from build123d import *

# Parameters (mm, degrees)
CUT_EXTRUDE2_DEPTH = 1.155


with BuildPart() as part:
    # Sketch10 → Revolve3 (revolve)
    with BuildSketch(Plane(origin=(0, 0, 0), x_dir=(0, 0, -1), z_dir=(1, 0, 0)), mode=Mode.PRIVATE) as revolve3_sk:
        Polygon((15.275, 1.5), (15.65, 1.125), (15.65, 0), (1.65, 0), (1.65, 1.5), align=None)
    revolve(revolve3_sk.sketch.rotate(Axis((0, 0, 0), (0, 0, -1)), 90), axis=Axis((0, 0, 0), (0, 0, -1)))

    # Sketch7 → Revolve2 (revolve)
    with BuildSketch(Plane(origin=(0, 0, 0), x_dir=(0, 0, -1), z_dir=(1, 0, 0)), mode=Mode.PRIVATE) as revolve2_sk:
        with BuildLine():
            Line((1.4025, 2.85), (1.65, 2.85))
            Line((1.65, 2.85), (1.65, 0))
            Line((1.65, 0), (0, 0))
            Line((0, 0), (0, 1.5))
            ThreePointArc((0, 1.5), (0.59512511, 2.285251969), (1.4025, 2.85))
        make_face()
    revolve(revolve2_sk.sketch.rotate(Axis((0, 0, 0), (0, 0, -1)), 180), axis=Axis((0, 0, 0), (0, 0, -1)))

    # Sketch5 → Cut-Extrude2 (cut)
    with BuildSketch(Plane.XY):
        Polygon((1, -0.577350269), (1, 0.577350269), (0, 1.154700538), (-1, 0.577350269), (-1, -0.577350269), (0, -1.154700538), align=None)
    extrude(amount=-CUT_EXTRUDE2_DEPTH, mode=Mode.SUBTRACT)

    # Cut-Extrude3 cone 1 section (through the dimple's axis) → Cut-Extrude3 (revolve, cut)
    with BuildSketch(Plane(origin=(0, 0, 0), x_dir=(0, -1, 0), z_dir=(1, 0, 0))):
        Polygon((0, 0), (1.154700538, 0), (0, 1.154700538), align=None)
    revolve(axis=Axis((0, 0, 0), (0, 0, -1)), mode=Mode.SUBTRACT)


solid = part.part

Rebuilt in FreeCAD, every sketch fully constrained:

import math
import FreeCAD as App
import Part
import Sketcher

V = App.Vector
Q = App.Units.Quantity


def add_polygon(sketch, points):
    """Adds a closed chain of lines whose ends are joined by coincident constraints."""
    first, n = sketch.GeometryCount, len(points)
    for a, b in zip(points, points[1:] + points[:1]):
        sketch.addGeometry(Part.LineSegment(App.Vector(*a, 0), App.Vector(*b, 0)), False)
    for i in range(n):
        sketch.addConstraint(Sketcher.Constraint("Coincident", first + i, 2, first + (i + 1) % n, 1))

doc = App.newDocument("Part")
body = doc.addObject("PartDesign::Body", "Body")

# Sketch on YZ plane
sketch1 = body.newObject("Sketcher::SketchObject", "Sketch")
sketch1.AttachmentSupport = (doc.getObject("YZ_Plane"), [""])
sketch1.MapMode = "FlatFace"
add_polygon(sketch1, [(1.1, -15.7), (1.5, -15.3), (1.5, -1.6), (0, -1.6), (0, -15.7)])  # lines 0-4
sketch1.addConstraint(Sketcher.Constraint("Vertical", 1))
sketch1.addConstraint(Sketcher.Constraint("Horizontal", 2))
sketch1.addConstraint(Sketcher.Constraint("Vertical", 3))
sketch1.addConstraint(Sketcher.Constraint("Horizontal", 4))
sketch1.addConstraint(Sketcher.Constraint("PointOnObject", 2, 2, -2))
sketch1.addConstraint(Sketcher.Constraint("DistanceY", 3, 2, 3, 1, Q("14 mm")))
sketch1.addConstraint(Sketcher.Constraint("Angle", 0, Q("45 deg")))
sketch1.addConstraint(Sketcher.Constraint("DistanceX", 2, 2, 2, 1, Q("1.5 mm")))
sketch1.addConstraint(Sketcher.Constraint("DistanceX", 4, 1, 4, 2, Q("1.125 mm")))
sketch1.addConstraint(Sketcher.Constraint("DistanceY", 1, 2, -1, 1, Q("1.65 mm")))
revolution = body.newObject("PartDesign::Revolution", "Revolution")
revolution.Profile = sketch1
revolution.ReferenceAxis = (sketch1, ["V_Axis"])
revolution.Angle = 360

# Sketch on YZ plane
sketch2 = body.newObject("Sketcher::SketchObject", "Sketch001")
sketch2.AttachmentSupport = (doc.getObject("YZ_Plane"), [""])
sketch2.MapMode = "FlatFace"
sketch2.addGeometry(Part.LineSegment(V(2.85, -1.65, 0), V(2.85, -1.4, 0)), False)
sketch2.addGeometry(Part.ArcOfCircle(Part.Circle(V(0, -2.79, 0), V(0, 0, 1), 3.17), math.radians(26), math.radians(62)), False)
sketch2.addGeometry(Part.LineSegment(V(1.5, 0, 0), V(0, 0, 0)), False)
sketch2.addGeometry(Part.LineSegment(V(0, 0, 0), V(0, -1.65, 0)), False)
sketch2.addGeometry(Part.LineSegment(V(0, -1.65, 0), V(2.85, -1.65, 0)), False)
sketch2.addConstraint(Sketcher.Constraint("Coincident", 0, 2, 1, 1))
sketch2.addConstraint(Sketcher.Constraint("Coincident", 1, 2, 2, 1))
sketch2.addConstraint(Sketcher.Constraint("Coincident", 2, 2, 3, 1))
sketch2.addConstraint(Sketcher.Constraint("Coincident", 3, 2, 4, 1))
sketch2.addConstraint(Sketcher.Constraint("Coincident", 4, 2, 0, 1))
sketch2.addConstraint(Sketcher.Constraint("Vertical", 0))
sketch2.addConstraint(Sketcher.Constraint("Horizontal", 2))
sketch2.addConstraint(Sketcher.Constraint("Vertical", 3))
sketch2.addConstraint(Sketcher.Constraint("Horizontal", 4))
sketch2.addConstraint(Sketcher.Constraint("Coincident", 2, 2, -1, 1))
sketch2.addConstraint(Sketcher.Constraint("PointOnObject", 1, 3, -2))
sketch2.addConstraint(Sketcher.Constraint("DistanceX", 2, 2, 2, 1, Q("1.5 mm")))
sketch2.addConstraint(Sketcher.Constraint("DistanceX", 4, 1, 4, 2, Q("2.85 mm")))
sketch2.addConstraint(Sketcher.Constraint("DistanceY", 3, 2, 3, 1, Q("1.65 mm")))
sketch2.addConstraint(Sketcher.Constraint("DistanceY", 0, 1, 0, 2, Q("0.2475 mm")))
revolution2 = body.newObject("PartDesign::Revolution", "Revolution001")
revolution2.Profile = sketch2
revolution2.ReferenceAxis = (sketch2, ["V_Axis"])
revolution2.Angle = 360

# Sketch on XY plane
sketch3 = body.newObject("Sketcher::SketchObject", "Sketch002")
sketch3.AttachmentSupport = (doc.getObject("XY_Plane"), [""])
sketch3.MapMode = "FlatFace"
add_polygon(sketch3, [(1, -0.6), (1, 0.6), (0, 1.2), (-1, 0.6), (-1, -0.6), (0, -1.2)])  # lines 0-5
sketch3.addConstraint(Sketcher.Constraint("Vertical", 0))
sketch3.addConstraint(Sketcher.Constraint("Vertical", 3))
sketch3.addConstraint(Sketcher.Constraint("Symmetric", 0, 2, 3, 2, -1, 1))
sketch3.addConstraint(Sketcher.Constraint("Symmetric", 1, 2, 4, 2, -1, 1))
sketch3.addConstraint(Sketcher.Constraint("PointOnObject", 1, 2, -2))
sketch3.addConstraint(Sketcher.Constraint("Parallel", 2, 5))
sketch3.addConstraint(Sketcher.Constraint("Horizontal", 0, 2, 2, 2))
sketch3.addConstraint(Sketcher.Constraint("Angle", 1, Q("150 deg")))
sketch3.addConstraint(Sketcher.Constraint("DistanceX", -1, 1, 0, 2, Q("1 mm")))
sketch3.addConstraint(Sketcher.Constraint("DistanceY", 0, 1, 0, 2, Q("1.154701 mm")))
pocket1 = body.newObject("PartDesign::Pocket", "Pocket")
pocket1.Profile = sketch3
pocket1.Length = 1.155

# Sketch on YZ plane
sketch4 = body.newObject("Sketcher::SketchObject", "Sketch003")
sketch4.AttachmentSupport = (doc.getObject("YZ_Plane"), [""])
sketch4.MapMode = "FlatFace"
add_polygon(sketch4, [(0, 0), (-1.2, 0), (0, -1.2)])  # lines 0-2
sketch4.addConstraint(Sketcher.Constraint("Horizontal", 0))
sketch4.addConstraint(Sketcher.Constraint("Vertical", 2))
sketch4.addConstraint(Sketcher.Constraint("Coincident", 2, 2, -1, 1))
sketch4.addConstraint(Sketcher.Constraint("Equal", 0, 2))
sketch4.addConstraint(Sketcher.Constraint("DistanceX", 0, 2, 0, 1, Q("1.154701 mm")))
groove = body.newObject("PartDesign::Groove", "Groove")
groove.Profile = sketch4
groove.ReferenceAxis = (sketch4, ["V_Axis"])
groove.Angle = 360

doc.recompute()
